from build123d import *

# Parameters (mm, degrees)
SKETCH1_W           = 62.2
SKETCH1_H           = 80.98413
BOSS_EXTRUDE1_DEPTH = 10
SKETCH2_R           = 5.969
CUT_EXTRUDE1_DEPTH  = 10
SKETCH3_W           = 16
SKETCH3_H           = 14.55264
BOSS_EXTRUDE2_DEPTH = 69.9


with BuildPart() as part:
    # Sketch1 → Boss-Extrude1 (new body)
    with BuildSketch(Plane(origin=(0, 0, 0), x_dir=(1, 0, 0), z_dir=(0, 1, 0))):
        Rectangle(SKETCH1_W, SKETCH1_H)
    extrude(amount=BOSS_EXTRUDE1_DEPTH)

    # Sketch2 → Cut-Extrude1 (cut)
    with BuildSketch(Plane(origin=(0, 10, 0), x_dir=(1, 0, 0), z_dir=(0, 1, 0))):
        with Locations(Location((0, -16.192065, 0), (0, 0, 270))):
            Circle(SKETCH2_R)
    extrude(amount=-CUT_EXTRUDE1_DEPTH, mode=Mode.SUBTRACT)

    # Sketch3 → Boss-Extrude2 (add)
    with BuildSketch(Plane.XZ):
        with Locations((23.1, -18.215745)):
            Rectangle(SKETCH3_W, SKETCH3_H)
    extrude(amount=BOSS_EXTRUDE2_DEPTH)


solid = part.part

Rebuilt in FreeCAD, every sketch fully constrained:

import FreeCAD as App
import Part
import Sketcher

V = App.Vector
Q = App.Units.Quantity


def add_polygon(sketch, points):
    """Adds a closed chain of lines whose ends are joined by coincident constraints."""
    first, n = sketch.GeometryCount, len(points)
    for a, b in zip(points, points[1:] + points[:1]):
        sketch.addGeometry(Part.LineSegment(App.Vector(*a, 0), App.Vector(*b, 0)), False)
    for i in range(n):
        sketch.addConstraint(Sketcher.Constraint("Coincident", first + i, 2, first + (i + 1) % n, 1))

doc = App.newDocument("Part")
params = doc.addObject("Spreadsheet::Sheet", "Params")
for row, (alias, value) in enumerate([
    ("sketch1_width", "62.2 mm"),
    ("pad1_length", "10 mm"),
    ("pocket1_length", "10 mm"),
    ("sketch3_width", "16 mm"),
    ("pad2_length", "69.9 mm"),
], start=1):
    params.set(f"A{row}", alias)
    params.set(f"B{row}", "=" + value)
    params.setAlias(f"B{row}", alias)

body = doc.addObject("PartDesign::Body", "Body")

# Sketch on XZ plane
sketch1 = body.newObject("Sketcher::SketchObject", "Sketch")
sketch1.AttachmentSupport = (doc.getObject("XZ_Plane"), [""])
sketch1.MapMode = "FlatFace"
add_polygon(sketch1, [(-31, -40), (-31, 40), (31, 40), (31, -40)])  # lines 0-3
sketch1.addConstraint([
    Sketcher.Constraint("Vertical", 0),
    Sketcher.Constraint("Horizontal", 1),
    Sketcher.Constraint("Vertical", 2),
    Sketcher.Constraint("Horizontal", 3),
    Sketcher.Constraint("Symmetric", 0, 2, 2, 2, -1, 1),
    Sketcher.Constraint("DistanceX", 1, 1, 1, 2, Q("62.2 mm")),
    Sketcher.Constraint("DistanceY", 0, 1, 0, 2, Q("80.98413 mm")),
])
sketch1.setExpression("Constraints[9]", "Params.sketch1_width")
pad1 = body.newObject("PartDesign::Pad", "Pad")
pad1.Profile = sketch1
pad1.setExpression("Length", "Params.pad1_length")
pad1.Reversed = True

# Sketch on XZ plane
sketch2 = body.newObject("Sketcher::SketchObject", "Sketch001")
sketch2.AttachmentSupport = (doc.getObject("XZ_Plane"), [""])
sketch2.MapMode = "FlatFace"
sketch2.AttachmentOffset = App.Placement(V(0, 0, -10), App.Rotation())
sketch2.addGeometry(Part.Circle(V(0, 16, 0), V(0, 0, 1), 6), False)
sketch2.addConstraint([
    Sketcher.Constraint("PointOnObject", 0, 3, -2),
    Sketcher.Constraint("Diameter", 0, Q("11.938 mm")),
    Sketcher.Constraint("DistanceY", -1, 1, 0, 3, Q("16.192065 mm")),
])
pocket1 = body.newObject("PartDesign::Pocket", "Pocket")
pocket1.Profile = sketch2
pocket1.setExpression("Length", "Params.pocket1_length")
pocket1.Reversed = True

# Sketch on XZ plane
sketch3 = body.newObject("Sketcher::SketchObject", "Sketch002")
sketch3.AttachmentSupport = (doc.getObject("XZ_Plane"), [""])
sketch3.MapMode = "FlatFace"
add_polygon(sketch3, [(15, -11), (15, -25), (31, -25), (31, -11)])  # lines 0-3
sketch3.addConstraint([
    Sketcher.Constraint("Vertical", 0),
    Sketcher.Constraint("Horizontal", 1),
    Sketcher.Constraint("Vertical", 2),
    Sketcher.Constraint("Horizontal", 3),
    Sketcher.Constraint("DistanceX", 1, 1, 1, 2, Q("16 mm")),
    Sketcher.Constraint("DistanceX", -1, 1, 0, 2, Q("15.1 mm")),
    Sketcher.Constraint("DistanceY", 0, 2, 0, 1, Q("14.55264 mm")),
    Sketcher.Constraint("DistanceY", 0, 2, -1, 1, Q("25.492065 mm")),
])
sketch3.setExpression("Constraints[8]", "Params.sketch3_width")
pad2 = body.newObject("PartDesign::Pad", "Pad001")
pad2.Profile = sketch3
pad2.setExpression("Length", "Params.pad2_length")

doc.recompute()
